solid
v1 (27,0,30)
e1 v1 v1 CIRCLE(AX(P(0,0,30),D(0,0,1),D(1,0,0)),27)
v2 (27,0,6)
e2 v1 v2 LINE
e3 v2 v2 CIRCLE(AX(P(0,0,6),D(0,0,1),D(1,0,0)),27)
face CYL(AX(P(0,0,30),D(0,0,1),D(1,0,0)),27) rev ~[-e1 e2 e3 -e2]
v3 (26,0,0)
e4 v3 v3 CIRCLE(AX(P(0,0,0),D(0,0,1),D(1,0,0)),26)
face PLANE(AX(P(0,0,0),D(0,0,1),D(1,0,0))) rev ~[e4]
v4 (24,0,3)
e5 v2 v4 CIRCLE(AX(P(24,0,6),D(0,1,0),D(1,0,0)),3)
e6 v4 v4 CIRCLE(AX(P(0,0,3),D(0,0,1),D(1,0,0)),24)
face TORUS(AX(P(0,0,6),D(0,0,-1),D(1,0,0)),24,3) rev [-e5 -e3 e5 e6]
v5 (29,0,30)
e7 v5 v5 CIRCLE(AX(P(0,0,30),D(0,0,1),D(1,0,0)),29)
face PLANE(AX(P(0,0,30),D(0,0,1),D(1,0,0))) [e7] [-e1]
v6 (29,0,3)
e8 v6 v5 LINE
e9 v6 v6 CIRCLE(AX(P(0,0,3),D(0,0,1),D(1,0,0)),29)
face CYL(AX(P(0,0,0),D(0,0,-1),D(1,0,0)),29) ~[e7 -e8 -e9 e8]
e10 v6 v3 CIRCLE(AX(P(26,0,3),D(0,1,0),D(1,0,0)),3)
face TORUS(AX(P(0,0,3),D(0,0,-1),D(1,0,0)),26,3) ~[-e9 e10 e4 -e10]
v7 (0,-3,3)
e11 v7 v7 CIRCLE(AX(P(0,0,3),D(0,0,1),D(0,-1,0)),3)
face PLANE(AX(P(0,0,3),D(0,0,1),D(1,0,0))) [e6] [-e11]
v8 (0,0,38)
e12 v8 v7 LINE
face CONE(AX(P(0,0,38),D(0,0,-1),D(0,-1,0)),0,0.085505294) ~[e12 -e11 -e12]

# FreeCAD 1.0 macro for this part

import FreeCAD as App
import Part
import Sketcher
Q = App.Units.Quantity


def edges_at(feature, points):
    """Names of the edges that pass closest to the given points."""
    edges = feature.Shape.Edges
    near = lambda p: min(range(len(edges)), key=lambda i: edges[i].distToShape(Part.Vertex(*p))[0])
    return sorted({f"Edge{near(p) + 1}" for p in points})

doc = App.newDocument("Part")
body = doc.addObject("PartDesign::Body", "Body")

# Sketch on XY plane
sketch1 = body.newObject("Sketcher::SketchObject", "Sketch")
sketch1.AttachmentSupport = (doc.getObject("XY_Plane"), [""])
sketch1.MapMode = "FlatFace"
sketch1.addGeometry(Part.Circle(App.Vector(0, 0, 0), App.Vector(0, 0, 1), 29), False)
sketch1.addConstraint(Sketcher.Constraint("Coincident", 0, 3, -1, 1))
sketch1.addConstraint(Sketcher.Constraint("Diameter", 0, Q("58 mm")))
pad1 = body.newObject("PartDesign::Pad", "Pad")
pad1.Profile = sketch1
pad1.Length = 30

# Sketch on XY plane
sketch2 = body.newObject("Sketcher::SketchObject", "Sketch001")
sketch2.AttachmentSupport = (doc.getObject("XY_Plane"), [""])
sketch2.MapMode = "FlatFace"
sketch2.AttachmentOffset = App.Placement(App.Vector(0, 0, 30), App.Rotation())
sketch2.addGeometry(Part.Circle(App.Vector(0, 0, 0), App.Vector(0, 0, 1), 27), False)
sketch2.addConstraint(Sketcher.Constraint("Coincident", 0, 3, -1, 1))
sketch2.addConstraint(Sketcher.Constraint("Diameter", 0, Q("54 mm")))
pocket1 = body.newObject("PartDesign::Pocket", "Pocket")
pocket1.Profile = sketch2
pocket1.Length = 27
doc.recompute()

fillet = body.newObject("PartDesign::Fillet", "Fillet")
fillet.Base = (pocket1, edges_at(pocket1, [(-27, 0, 3)]))
fillet.Radius = 3
doc.recompute()

fillet2 = body.newObject("PartDesign::Fillet", "Fillet001")
fillet2.Base = (fillet, edges_at(fillet, [(-29, 0, 0)]))
fillet2.Radius = 3

# Sketch on YZ plane
sketch3 = body.newObject("Sketcher::SketchObject", "Sketch002")
sketch3.AttachmentSupport = (doc.getObject("YZ_Plane"), [""])
sketch3.MapMode = "FlatFace"
sketch3.addGeometry(Part.LineSegment(App.Vector(-3, 3, 0), App.Vector(0, 3, 0)), False)
sketch3.addGeometry(Part.LineSegment(App.Vector(0, 3, 0), App.Vector(0, 38, 0)), False)
sketch3.addGeometry(Part.LineSegment(App.Vector(0, 38, 0), App.Vector(-3, 3, 0)), False)
sketch3.addConstraint(Sketcher.Constraint("Coincident", 0, 2, 1, 1))
sketch3.addConstraint(Sketcher.Constraint("Coincident", 1, 2, 2, 1))
sketch3.addConstraint(Sketcher.Constraint("Coincident", 2, 2, 0, 1))
sketch3.addConstraint(Sketcher.Constraint("Horizontal", 0))
sketch3.addConstraint(Sketcher.Constraint("Vertical", 1))
sketch3.addConstraint(Sketcher.Constraint("PointOnObject", 0, 2, -2))
sketch3.addConstraint(Sketcher.Constraint("DistanceX", 0, 1, 0, 2, Q("3 mm")))
sketch3.addConstraint(Sketcher.Constraint("DistanceY", 1, 1, 1, 2, Q("35 mm")))
sketch3.addConstraint(Sketcher.Constraint("DistanceY", -1, 1, 0, 2, Q("3 mm")))
revolution = body.newObject("PartDesign::Revolution", "Revolution")
revolution.Profile = sketch3
revolution.ReferenceAxis = (sketch3, ["V_Axis"])
revolution.Angle = 360

doc.recompute()
